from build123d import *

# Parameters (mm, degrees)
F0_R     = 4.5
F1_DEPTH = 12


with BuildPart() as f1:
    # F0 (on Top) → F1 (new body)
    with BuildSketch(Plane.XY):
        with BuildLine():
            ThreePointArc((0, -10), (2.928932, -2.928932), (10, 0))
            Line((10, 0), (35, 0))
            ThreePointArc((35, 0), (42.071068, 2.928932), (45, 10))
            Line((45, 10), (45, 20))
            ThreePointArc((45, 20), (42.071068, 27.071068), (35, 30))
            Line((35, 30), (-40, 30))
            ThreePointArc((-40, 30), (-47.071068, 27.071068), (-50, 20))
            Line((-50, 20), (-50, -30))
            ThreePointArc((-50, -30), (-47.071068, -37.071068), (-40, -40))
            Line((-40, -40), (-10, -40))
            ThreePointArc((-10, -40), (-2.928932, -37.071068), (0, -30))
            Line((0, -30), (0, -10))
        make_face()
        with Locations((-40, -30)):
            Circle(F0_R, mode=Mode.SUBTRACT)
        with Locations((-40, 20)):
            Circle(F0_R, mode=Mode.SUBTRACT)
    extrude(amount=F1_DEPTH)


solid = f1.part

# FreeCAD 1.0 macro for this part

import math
import FreeCAD as App
import Part
import Sketcher

V = App.Vector

doc = App.newDocument("Part")
params = doc.addObject("Spreadsheet::Sheet", "Params")
for row, (alias, value) in enumerate([
    ("sketch1_diameter", "9 mm"),
    ("sketch1_radius", "9.999999 mm"),
    ("sketch1_width", "25 mm"),
    ("sketch1_width2", "75 mm"),
    ("sketch1_height", "10 mm"),
    ("pad1_length", "12 mm"),
], start=1):
    params.set(f"A{row}", alias)
    params.set(f"B{row}", "=" + value)
    params.setAlias(f"B{row}", alias)

body = doc.addObject("PartDesign::Body", "Body")

# Sketch on XY plane
sketch1 = body.newObject("Sketcher::SketchObject", "Sketch")
sketch1.AttachmentSupport = (doc.getObject("XY_Plane"), [""])
sketch1.MapMode = "FlatFace"
sketch1.addGeometry([
    Part.ArcOfCircle(Part.Circle(V(10, -10, 0), V(0, 0, 1), 10), math.radians(90), math.radians(180)),  # 0
    Part.LineSegment(V(10, 0, 0), V(35, 0, 0)),  # 1
    Part.ArcOfCircle(Part.Circle(V(35, 10, 0), V(0, 0, 1), 10), math.radians(-90), math.radians(0)),  # 2
    Part.LineSegment(V(45, 10, 0), V(45, 20, 0)),  # 3
    Part.ArcOfCircle(Part.Circle(V(35, 20, 0), V(0, 0, 1), 10), math.radians(0), math.radians(90)),  # 4
    Part.LineSegment(V(35, 30, 0), V(-40, 30, 0)),  # 5
    Part.ArcOfCircle(Part.Circle(V(-40, 20, 0), V(0, 0, 1), 10), math.radians(90), math.radians(180)),  # 6
    Part.LineSegment(V(-50, 20, 0), V(-50, -30, 0)),  # 7
    Part.ArcOfCircle(Part.Circle(V(-40, -30, 0), V(0, 0, 1), 10), math.radians(180), math.radians(270)),  # 8
    Part.LineSegment(V(-40, -40, 0), V(-10, -40, 0)),  # 9
    Part.ArcOfCircle(Part.Circle(V(-10, -30, 0), V(0, 0, 1), 10), math.radians(-90), math.radians(0)),  # 10
    Part.LineSegment(V(0, -30, 0), V(0, -10, 0)),  # 11
    Part.Circle(V(-40, -30, 0), V(0, 0, 1), 4.5),  # 12
    Part.Circle(V(-40, 20, 0), V(0, 0, 1), 4.5),  # 13
], False)
sketch1.addConstraint([
    Sketcher.Constraint("Tangent", 0, 1, 1, 1),
    Sketcher.Constraint("Tangent", 1, 2, 2, 1),
    Sketcher.Constraint("Tangent", 2, 2, 3, 1),
    Sketcher.Constraint("Tangent", 3, 2, 4, 1),
    Sketcher.Constraint("Tangent", 4, 2, 5, 1),
    Sketcher.Constraint("Tangent", 5, 2, 6, 1),
    Sketcher.Constraint("Tangent", 6, 2, 7, 1),
    Sketcher.Constraint("Tangent", 7, 2, 8, 1),
    Sketcher.Constraint("Tangent", 8, 2, 9, 1),
    Sketcher.Constraint("Tangent", 9, 2, 10, 1),
    Sketcher.Constraint("Tangent", 10, 2, 11, 1),
    Sketcher.Constraint("Tangent", 11, 2, 0, 2),
    Sketcher.Constraint("Horizontal", 1),
    Sketcher.Constraint("Vertical", 3),
    Sketcher.Constraint("Horizontal", 5),
    Sketcher.Constraint("Vertical", 7),
    Sketcher.Constraint("Horizontal", 9),
    Sketcher.Constraint("Vertical", 11),
    Sketcher.Constraint("Coincident", 12, 3, 8, 3),
    Sketcher.Constraint("Coincident", 13, 3, 6, 3),
    Sketcher.Constraint("Equal", 0, 2),
    Sketcher.Constraint("Equal", 2, 4),
    Sketcher.Constraint("Equal", 4, 6),
    Sketcher.Constraint("Equal", 6, 8),
    Sketcher.Constraint("Equal", 8, 10),
    Sketcher.Constraint("Equal", 12, 13),
    Sketcher.Constraint("PointOnObject", 0, 1, -1),
    Sketcher.Constraint("PointOnObject", 10, 2, -2),
    Sketcher.Constraint("Diameter", 12, 9.0),
    Sketcher.Constraint("Radius", 0, 9.999999),
    Sketcher.Constraint("DistanceX", 1, 1, 1, 2, 25.0),
    Sketcher.Constraint("DistanceX", 5, 2, 5, 1, 75.0),
    Sketcher.Constraint("DistanceY", 3, 1, 3, 2, 10.0),
    Sketcher.Constraint("DistanceY", 7, 2, 7, 1, 50.0),
])
sketch1.setExpression("Constraints[28]", "Params.sketch1_diameter")
sketch1.setExpression("Constraints[29]", "Params.sketch1_radius")
sketch1.setExpression("Constraints[30]", "Params.sketch1_width")
sketch1.setExpression("Constraints[31]", "Params.sketch1_width2")
sketch1.setExpression("Constraints[32]", "Params.sketch1_height")
pad1 = body.newObject("PartDesign::Pad", "Pad")
pad1.Profile = sketch1
pad1.setExpression("Length", "Params.pad1_length")

doc.recompute()
